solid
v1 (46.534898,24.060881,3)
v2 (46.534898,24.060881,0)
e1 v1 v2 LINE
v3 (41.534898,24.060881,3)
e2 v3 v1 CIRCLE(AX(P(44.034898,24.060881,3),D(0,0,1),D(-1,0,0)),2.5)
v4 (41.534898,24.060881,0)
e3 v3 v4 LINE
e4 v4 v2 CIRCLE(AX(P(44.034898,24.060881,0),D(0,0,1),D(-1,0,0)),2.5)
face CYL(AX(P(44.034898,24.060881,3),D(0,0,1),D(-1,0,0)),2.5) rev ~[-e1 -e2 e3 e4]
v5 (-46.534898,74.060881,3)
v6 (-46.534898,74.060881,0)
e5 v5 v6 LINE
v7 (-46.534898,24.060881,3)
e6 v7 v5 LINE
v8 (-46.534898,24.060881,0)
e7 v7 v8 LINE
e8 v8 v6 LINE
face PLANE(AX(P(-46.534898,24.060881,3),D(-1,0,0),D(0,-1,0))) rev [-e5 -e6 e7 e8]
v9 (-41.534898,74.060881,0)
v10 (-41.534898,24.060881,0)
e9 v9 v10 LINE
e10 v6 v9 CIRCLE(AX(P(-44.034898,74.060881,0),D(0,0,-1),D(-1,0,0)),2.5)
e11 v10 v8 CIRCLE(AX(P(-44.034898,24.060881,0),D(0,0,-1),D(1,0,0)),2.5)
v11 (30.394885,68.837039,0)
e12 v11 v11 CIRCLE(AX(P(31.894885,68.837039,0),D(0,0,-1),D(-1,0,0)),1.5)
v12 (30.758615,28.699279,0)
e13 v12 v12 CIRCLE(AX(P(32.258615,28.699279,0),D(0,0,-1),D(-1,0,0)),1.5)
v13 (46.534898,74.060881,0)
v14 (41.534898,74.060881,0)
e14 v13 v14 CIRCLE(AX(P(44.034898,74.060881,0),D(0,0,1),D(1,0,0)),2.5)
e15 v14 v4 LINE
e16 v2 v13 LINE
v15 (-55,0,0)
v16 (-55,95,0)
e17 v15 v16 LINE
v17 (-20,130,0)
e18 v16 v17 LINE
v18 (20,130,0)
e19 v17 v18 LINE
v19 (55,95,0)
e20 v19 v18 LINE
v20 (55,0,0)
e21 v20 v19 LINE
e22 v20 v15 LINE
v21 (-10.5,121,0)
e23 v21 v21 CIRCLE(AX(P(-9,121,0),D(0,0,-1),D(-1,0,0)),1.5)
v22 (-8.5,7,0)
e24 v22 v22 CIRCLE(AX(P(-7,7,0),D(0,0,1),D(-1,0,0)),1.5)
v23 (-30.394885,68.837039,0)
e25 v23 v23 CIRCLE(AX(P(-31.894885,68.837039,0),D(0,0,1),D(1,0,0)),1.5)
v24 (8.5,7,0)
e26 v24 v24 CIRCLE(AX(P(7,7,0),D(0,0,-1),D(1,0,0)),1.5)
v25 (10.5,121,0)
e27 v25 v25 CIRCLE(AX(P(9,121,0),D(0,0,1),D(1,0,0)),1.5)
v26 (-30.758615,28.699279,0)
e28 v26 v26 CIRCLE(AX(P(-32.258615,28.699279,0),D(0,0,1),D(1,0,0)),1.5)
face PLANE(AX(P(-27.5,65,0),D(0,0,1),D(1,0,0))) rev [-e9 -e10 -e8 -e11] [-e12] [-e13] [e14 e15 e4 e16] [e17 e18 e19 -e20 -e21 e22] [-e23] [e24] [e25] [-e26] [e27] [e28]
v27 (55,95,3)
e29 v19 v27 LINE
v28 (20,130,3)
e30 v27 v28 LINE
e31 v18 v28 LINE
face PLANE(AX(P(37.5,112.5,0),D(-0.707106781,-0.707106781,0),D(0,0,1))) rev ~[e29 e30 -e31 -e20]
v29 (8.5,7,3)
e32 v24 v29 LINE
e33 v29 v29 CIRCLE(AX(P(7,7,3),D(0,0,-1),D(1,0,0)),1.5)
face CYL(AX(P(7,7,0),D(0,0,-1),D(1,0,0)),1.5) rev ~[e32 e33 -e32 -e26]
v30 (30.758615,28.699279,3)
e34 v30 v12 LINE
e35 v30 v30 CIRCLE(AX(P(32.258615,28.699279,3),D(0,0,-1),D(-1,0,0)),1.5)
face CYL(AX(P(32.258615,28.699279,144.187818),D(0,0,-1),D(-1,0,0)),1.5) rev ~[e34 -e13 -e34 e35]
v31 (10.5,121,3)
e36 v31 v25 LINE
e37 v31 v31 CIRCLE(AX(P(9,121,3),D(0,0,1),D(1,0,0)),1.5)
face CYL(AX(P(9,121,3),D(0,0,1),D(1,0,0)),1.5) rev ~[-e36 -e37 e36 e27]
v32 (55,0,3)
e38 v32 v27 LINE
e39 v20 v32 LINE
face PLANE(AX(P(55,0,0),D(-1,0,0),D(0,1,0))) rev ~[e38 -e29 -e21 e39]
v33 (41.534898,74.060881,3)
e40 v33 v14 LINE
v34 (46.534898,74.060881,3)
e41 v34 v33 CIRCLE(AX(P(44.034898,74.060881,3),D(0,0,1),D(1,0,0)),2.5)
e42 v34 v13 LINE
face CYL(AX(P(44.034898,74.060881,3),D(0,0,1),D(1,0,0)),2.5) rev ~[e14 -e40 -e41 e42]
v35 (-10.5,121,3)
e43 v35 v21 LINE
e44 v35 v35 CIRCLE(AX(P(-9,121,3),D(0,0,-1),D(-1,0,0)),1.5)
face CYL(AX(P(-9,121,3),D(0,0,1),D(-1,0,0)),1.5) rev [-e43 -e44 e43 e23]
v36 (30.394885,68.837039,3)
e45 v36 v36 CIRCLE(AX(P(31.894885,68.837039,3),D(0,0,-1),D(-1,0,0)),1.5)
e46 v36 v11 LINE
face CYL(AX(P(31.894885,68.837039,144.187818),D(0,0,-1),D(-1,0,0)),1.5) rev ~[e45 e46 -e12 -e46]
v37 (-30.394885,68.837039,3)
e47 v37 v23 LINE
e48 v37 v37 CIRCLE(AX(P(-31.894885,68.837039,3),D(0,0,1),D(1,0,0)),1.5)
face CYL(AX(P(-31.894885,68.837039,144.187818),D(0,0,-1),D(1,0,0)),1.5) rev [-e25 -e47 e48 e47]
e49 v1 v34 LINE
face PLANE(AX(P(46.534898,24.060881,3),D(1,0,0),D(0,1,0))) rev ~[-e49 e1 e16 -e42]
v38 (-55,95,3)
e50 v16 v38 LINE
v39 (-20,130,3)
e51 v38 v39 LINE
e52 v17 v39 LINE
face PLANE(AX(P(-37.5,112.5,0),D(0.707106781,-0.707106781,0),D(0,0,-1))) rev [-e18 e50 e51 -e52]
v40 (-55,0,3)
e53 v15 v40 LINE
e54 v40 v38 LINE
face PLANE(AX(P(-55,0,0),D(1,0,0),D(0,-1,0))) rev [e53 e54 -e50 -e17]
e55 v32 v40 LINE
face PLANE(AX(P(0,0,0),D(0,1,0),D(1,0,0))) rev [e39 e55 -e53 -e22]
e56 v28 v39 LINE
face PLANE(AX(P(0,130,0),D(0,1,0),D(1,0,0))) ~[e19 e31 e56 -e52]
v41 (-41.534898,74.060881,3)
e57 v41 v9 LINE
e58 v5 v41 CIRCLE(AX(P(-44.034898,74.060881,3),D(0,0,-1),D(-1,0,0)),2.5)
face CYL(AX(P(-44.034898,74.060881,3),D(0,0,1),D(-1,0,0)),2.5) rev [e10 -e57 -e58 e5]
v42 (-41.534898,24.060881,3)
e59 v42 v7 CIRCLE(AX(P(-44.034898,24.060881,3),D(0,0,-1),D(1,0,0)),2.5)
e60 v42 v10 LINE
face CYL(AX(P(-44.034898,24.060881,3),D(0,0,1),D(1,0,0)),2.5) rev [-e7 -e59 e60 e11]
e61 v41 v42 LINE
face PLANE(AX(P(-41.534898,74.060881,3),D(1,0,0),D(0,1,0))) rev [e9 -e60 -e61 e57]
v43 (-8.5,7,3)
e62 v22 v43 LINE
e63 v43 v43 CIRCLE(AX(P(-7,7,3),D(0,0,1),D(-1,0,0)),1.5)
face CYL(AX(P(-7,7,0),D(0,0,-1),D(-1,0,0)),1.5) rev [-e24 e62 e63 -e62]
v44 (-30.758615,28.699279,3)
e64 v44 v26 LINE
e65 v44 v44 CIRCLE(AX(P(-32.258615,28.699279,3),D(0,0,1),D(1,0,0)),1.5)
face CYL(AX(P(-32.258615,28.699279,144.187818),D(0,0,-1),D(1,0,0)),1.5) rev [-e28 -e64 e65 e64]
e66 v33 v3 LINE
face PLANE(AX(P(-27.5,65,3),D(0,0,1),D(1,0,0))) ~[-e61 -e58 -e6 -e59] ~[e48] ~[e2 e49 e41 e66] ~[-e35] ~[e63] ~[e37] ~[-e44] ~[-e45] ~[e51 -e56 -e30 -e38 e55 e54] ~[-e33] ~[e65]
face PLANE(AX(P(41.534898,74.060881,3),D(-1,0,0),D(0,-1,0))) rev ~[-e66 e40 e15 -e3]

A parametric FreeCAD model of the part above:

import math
import FreeCAD as App
import Part
import Sketcher


def edges_at(feature, points):
    """Names of the edges that pass closest to the given points."""
    edges = feature.Shape.Edges
    near = lambda p: min(range(len(edges)), key=lambda i: edges[i].distToShape(Part.Vertex(*p))[0])
    return sorted({f"Edge{near(p) + 1}" for p in points})

doc = App.newDocument("Part")
params = doc.addObject("Spreadsheet::Sheet", "Params")
for row, (alias, value) in enumerate([
    ("sketch1_width", "55 mm"),
    ("sketch1_height", "130 mm"),
    ("pad1_length", "3 mm"),
    ("chamfer_size", "35 mm"),
    ("sketch2_radius", "2.5 mm"),
    ("sketch2_height", "50 mm"),
    ("pocket1_length", "34.03176 mm"),
    ("sketch3_diameter", "3 mm"),
    ("hole_diameter", "3 mm"),
    ("sketch4_diameter", "3 mm"),
    ("hole2_diameter", "3 mm"),
    ("sketch5_diameter", "3 mm"),
    ("pocket2_length", "25 mm"),
    ("sketch6_diameter", "3 mm"),
    ("pocket3_length", "25 mm"),
], start=1):
    params.set(f"A{row}", alias)
    params.set(f"B{row}", "=" + value)
    params.setAlias(f"B{row}", alias)

body = doc.addObject("PartDesign::Body", "Body")

sketch1 = doc.addObject("Sketcher::SketchObject", "Sketch")
body.addObject(sketch1)
sketch1.AttachmentSupport = (doc.XY_Plane, [""])
sketch1.MapMode = "FlatFace"
sketch1.addGeometry(Part.LineSegment(App.Vector(0, 130, 0), App.Vector(0, 0, 0)), False)
sketch1.addGeometry(Part.LineSegment(App.Vector(0, 0, 0), App.Vector(55, 0, 0)), False)
sketch1.addGeometry(Part.LineSegment(App.Vector(55, 0, 0), App.Vector(55, 130, 0)), False)
sketch1.addGeometry(Part.LineSegment(App.Vector(55, 130, 0), App.Vector(0, 130, 0)), False)
sketch1.addConstraint(Sketcher.Constraint("Coincident", 0, 2, 1, 1))
sketch1.addConstraint(Sketcher.Constraint("Coincident", 1, 2, 2, 1))
sketch1.addConstraint(Sketcher.Constraint("Coincident", 2, 2, 3, 1))
sketch1.addConstraint(Sketcher.Constraint("Coincident", 3, 2, 0, 1))
sketch1.addConstraint(Sketcher.Constraint("Vertical", 0))
sketch1.addConstraint(Sketcher.Constraint("Horizontal", 1))
sketch1.addConstraint(Sketcher.Constraint("Vertical", 2))
sketch1.addConstraint(Sketcher.Constraint("Horizontal", 3))
sketch1.addConstraint(Sketcher.Constraint("Coincident", 0, 2, -1, 1))
sketch1.addConstraint(Sketcher.Constraint("DistanceX", 1, 1, 1, 2, 55.0))
sketch1.addConstraint(Sketcher.Constraint("DistanceY", 0, 2, 0, 1, 130.0))
sketch1.setExpression("Constraints[9]", "Params.sketch1_width")
sketch1.setExpression("Constraints[10]", "Params.sketch1_height")
pad1 = doc.addObject("PartDesign::Pad", "Pad")
body.addObject(pad1)
pad1.Profile = sketch1
pad1.setExpression("Length", "Params.pad1_length")
doc.recompute()

chamfer = doc.addObject("PartDesign::Chamfer", "Chamfer")
body.addObject(chamfer)
chamfer.Base = (pad1, edges_at(pad1, [(55, 130, 1.5)]))
chamfer.setExpression("Size", "Params.chamfer_size")

sketch2 = doc.addObject("Sketcher::SketchObject", "Sketch001")
body.addObject(sketch2)
sketch2.AttachmentSupport = (doc.XY_Plane, [""])
sketch2.MapMode = "FlatFace"
sketch2.AttachmentOffset = App.Placement(App.Vector(0, 0, 3), App.Rotation())
sketch2.addGeometry(Part.ArcOfCircle(Part.Circle(App.Vector(44, 74.1, 0), App.Vector(0, 0, 1), 2.5), math.radians(0), math.radians(180)), False)
sketch2.addGeometry(Part.LineSegment(App.Vector(41.5, 74.1, 0), App.Vector(41.5, 24.1, 0)), False)
sketch2.addGeometry(Part.ArcOfCircle(Part.Circle(App.Vector(44, 24.1, 0), App.Vector(0, 0, 1), 2.5), math.radians(180), math.radians(360)), False)
sketch2.addGeometry(Part.LineSegment(App.Vector(46.5, 24.1, 0), App.Vector(46.5, 74.1, 0)), False)
sketch2.addConstraint(Sketcher.Constraint("Tangent", 0, 2, 1, 1))
sketch2.addConstraint(Sketcher.Constraint("Tangent", 1, 2, 2, 1))
sketch2.addConstraint(Sketcher.Constraint("Tangent", 2, 2, 3, 1))
sketch2.addConstraint(Sketcher.Constraint("Tangent", 3, 2, 0, 1))
sketch2.addConstraint(Sketcher.Constraint("Vertical", 1))
sketch2.addConstraint(Sketcher.Constraint("Vertical", 3))
sketch2.addConstraint(Sketcher.Constraint("Radius", 0, 2.5))
sketch2.addConstraint(Sketcher.Constraint("DistanceY", 1, 2, 1, 1, 50.0))
sketch2.addConstraint(Sketcher.Constraint("DistanceY", -1, 1, 0, 3, 74.060881))
sketch2.addConstraint(Sketcher.Constraint("DistanceX", -1, 1, 0, 3, 44.034898))
sketch2.setExpression("Constraints[6]", "Params.sketch2_radius")
sketch2.setExpression("Constraints[7]", "Params.sketch2_height")
pocket1 = doc.addObject("PartDesign::Pocket", "Pocket")
body.addObject(pocket1)
pocket1.Profile = sketch2
pocket1.setExpression("Length", "Params.pocket1_length")

sketch3 = doc.addObject("Sketcher::SketchObject", "Sketch002")
body.addObject(sketch3)
sketch3.AttachmentSupport = (doc.XY_Plane, [""])
sketch3.MapMode = "FlatFace"
sketch3.AttachmentOffset = App.Placement(App.Vector(0, 0, 3), App.Rotation())
sketch3.addGeometry(Part.Circle(App.Vector(31.9, 68.8, 0), App.Vector(0, 0, 1), 1.5), False)
sketch3.addConstraint(Sketcher.Constraint("Diameter", 0, 3.0))
sketch3.addConstraint(Sketcher.Constraint("DistanceY", -1, 1, 0, 3, 68.837039))
sketch3.addConstraint(Sketcher.Constraint("DistanceX", -1, 1, 0, 3, 31.894885))
sketch3.setExpression("Constraints[0]", "Params.sketch3_diameter")
doc.recompute()
hole = doc.addObject("PartDesign::Hole", "Hole")
body.addObject(hole)
hole.Profile = sketch3
hole.ThreadType = "None"
hole.setExpression("Diameter", "Params.hole_diameter")
hole.DepthType = "ThroughAll"

sketch4 = doc.addObject("Sketcher::SketchObject", "Sketch003")
body.addObject(sketch4)
sketch4.AttachmentSupport = (doc.XY_Plane, [""])
sketch4.MapMode = "FlatFace"
sketch4.AttachmentOffset = App.Placement(App.Vector(0, 0, 3), App.Rotation())
sketch4.addGeometry(Part.Circle(App.Vector(32.3, 28.7, 0), App.Vector(0, 0, 1), 1.5), False)
sketch4.addConstraint(Sketcher.Constraint("Diameter", 0, 3.0))
sketch4.addConstraint(Sketcher.Constraint("DistanceY", -1, 1, 0, 3, 28.699279))
sketch4.addConstraint(Sketcher.Constraint("DistanceX", -1, 1, 0, 3, 32.258615))
sketch4.setExpression("Constraints[0]", "Params.sketch4_diameter")
doc.recompute()
hole2 = doc.addObject("PartDesign::Hole", "Hole001")
body.addObject(hole2)
hole2.Profile = sketch4
hole2.ThreadType = "None"
hole2.setExpression("Diameter", "Params.hole2_diameter")
hole2.DepthType = "ThroughAll"

sketch5 = doc.addObject("Sketcher::SketchObject", "Sketch004")
body.addObject(sketch5)
sketch5.AttachmentSupport = (doc.XY_Plane, [""])
sketch5.MapMode = "FlatFace"
sketch5.addGeometry(Part.Circle(App.Vector(7, 7, 0), App.Vector(0, 0, 1), 1.5), False)
sketch5.addConstraint(Sketcher.Constraint("Diameter", 0, 3.0))
sketch5.addConstraint(Sketcher.Constraint("DistanceX", -1, 1, 0, 3, 7.0))
sketch5.addConstraint(Sketcher.Constraint("DistanceY", -1, 1, 0, 3, 7.0))
sketch5.setExpression("Constraints[0]", "Params.sketch5_diameter")
pocket2 = doc.addObject("PartDesign::Pocket", "Pocket001")
body.addObject(pocket2)
pocket2.Profile = sketch5
pocket2.setExpression("Length", "Params.pocket2_length")
pocket2.Reversed = True

sketch6 = doc.addObject("Sketcher::SketchObject", "Sketch005")
body.addObject(sketch6)
sketch6.AttachmentSupport = (doc.XY_Plane, [""])
sketch6.MapMode = "FlatFace"
sketch6.AttachmentOffset = App.Placement(App.Vector(0, 0, 3), App.Rotation())
sketch6.addGeometry(Part.Circle(App.Vector(9, 121, 0), App.Vector(0, 0, 1), 1.5), False)
sketch6.addConstraint(Sketcher.Constraint("Diameter", 0, 3.0))
sketch6.addConstraint(Sketcher.Constraint("DistanceX", -1, 1, 0, 3, 9.0))
sketch6.addConstraint(Sketcher.Constraint("DistanceY", -1, 1, 0, 3, 121.0))
sketch6.setExpression("Constraints[0]", "Params.sketch6_diameter")
pocket3 = doc.addObject("PartDesign::Pocket", "Pocket002")
body.addObject(pocket3)
pocket3.Profile = sketch6
pocket3.setExpression("Length", "Params.pocket3_length")
body2 = doc.addObject("PartDesign::Body", "Body001")
doc.recompute()

body2.BaseFeature = body
doc.recompute()

mirroring = doc.addObject("Part::Mirroring", "Mirroring")
mirroring.Source = body
mirroring.Base = App.Vector(0, 0, 0)
mirroring.Normal = App.Vector(1, 0, 0)
body3 = doc.addObject("PartDesign::Body", "Body002")
body3.BaseFeature = mirroring
boolean = doc.addObject("PartDesign::Boolean", "Boolean")
body2.addObject(boolean)
boolean.Type = "Fuse"
boolean.addObjects([body3])
doc.recompute()
mirroring.Visibility = False

doc.recompute()
